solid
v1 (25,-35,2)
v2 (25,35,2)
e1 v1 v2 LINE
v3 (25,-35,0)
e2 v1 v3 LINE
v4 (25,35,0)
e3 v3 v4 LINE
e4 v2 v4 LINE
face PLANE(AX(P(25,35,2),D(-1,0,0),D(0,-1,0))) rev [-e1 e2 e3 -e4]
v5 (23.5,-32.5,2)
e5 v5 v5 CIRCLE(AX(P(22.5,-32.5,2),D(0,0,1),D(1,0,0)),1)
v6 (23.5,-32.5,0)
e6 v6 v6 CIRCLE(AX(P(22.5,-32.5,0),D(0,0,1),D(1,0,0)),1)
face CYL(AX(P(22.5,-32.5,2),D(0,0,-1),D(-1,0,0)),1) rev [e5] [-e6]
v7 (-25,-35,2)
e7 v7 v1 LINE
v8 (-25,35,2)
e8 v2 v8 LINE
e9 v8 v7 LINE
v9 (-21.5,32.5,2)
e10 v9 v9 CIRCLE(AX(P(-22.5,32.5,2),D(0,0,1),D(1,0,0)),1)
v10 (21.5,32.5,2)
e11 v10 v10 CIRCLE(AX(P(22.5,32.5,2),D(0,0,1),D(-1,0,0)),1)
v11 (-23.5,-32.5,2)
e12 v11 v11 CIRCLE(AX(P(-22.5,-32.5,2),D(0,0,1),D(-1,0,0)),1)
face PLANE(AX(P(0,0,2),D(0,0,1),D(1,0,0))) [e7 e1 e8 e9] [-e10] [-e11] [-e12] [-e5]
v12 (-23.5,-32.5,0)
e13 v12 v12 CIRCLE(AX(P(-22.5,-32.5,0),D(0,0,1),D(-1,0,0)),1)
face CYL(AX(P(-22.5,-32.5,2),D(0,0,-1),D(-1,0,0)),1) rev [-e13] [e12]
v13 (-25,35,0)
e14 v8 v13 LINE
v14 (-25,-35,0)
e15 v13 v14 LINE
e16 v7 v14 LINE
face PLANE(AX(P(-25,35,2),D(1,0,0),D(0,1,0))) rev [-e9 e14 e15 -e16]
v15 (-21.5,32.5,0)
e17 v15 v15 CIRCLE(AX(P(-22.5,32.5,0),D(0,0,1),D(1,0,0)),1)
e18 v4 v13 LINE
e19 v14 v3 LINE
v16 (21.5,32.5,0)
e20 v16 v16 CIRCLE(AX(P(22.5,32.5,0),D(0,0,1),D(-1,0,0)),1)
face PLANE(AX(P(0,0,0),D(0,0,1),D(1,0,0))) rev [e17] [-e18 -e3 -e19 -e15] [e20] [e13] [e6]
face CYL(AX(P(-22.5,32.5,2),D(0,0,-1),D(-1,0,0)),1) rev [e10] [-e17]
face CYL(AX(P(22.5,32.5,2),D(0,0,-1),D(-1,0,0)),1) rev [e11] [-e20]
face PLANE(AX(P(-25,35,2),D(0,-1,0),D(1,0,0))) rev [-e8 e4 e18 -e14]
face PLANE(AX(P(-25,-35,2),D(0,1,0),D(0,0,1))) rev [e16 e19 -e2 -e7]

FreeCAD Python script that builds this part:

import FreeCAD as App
import Part
import Sketcher

V = App.Vector
Q = App.Units.Quantity

doc = App.newDocument("Part")
body = doc.addObject("PartDesign::Body", "Body")

sketch1 = body.newObject("Sketcher::SketchObject", "Sketch")
sketch1.AttachmentSupport = (doc.getObject("XY_Plane"), [""])
sketch1.MapMode = "FlatFace"
sketch1.addGeometry([
    Part.LineSegment(V(-25, 35, 0), V(-25, -35, 0)),
    Part.LineSegment(V(-25, -35, 0), V(25, -35, 0)),
    Part.LineSegment(V(25, -35, 0), V(25, 35, 0)),
    Part.LineSegment(V(25, 35, 0), V(-25, 35, 0)),
    Part.Circle(V(-22.5, -32.5, 0), V(0, 0, 1), 1),
    Part.Circle(V(22.5, -32.5, 0), V(0, 0, 1), 1),
    Part.Circle(V(-22.5, 32.5, 0), V(0, 0, 1), 1),
    Part.Circle(V(22.5, 32.5, 0), V(0, 0, 1), 1),
], False)
sketch1.addConstraint([
    Sketcher.Constraint("Coincident", 0, 2, 1, 1),
    Sketcher.Constraint("Coincident", 1, 2, 2, 1),
    Sketcher.Constraint("Coincident", 2, 2, 3, 1),
    Sketcher.Constraint("Coincident", 3, 2, 0, 1),
    Sketcher.Constraint("Vertical", 0),
    Sketcher.Constraint("Horizontal", 1),
    Sketcher.Constraint("Vertical", 2),
    Sketcher.Constraint("Horizontal", 3),
    Sketcher.Constraint("Equal", 4, 5),
    Sketcher.Constraint("Equal", 5, 6),
    Sketcher.Constraint("Equal", 6, 7),
    Sketcher.Constraint("Symmetric", 5, 3, 6, 3, -1, 1),
    Sketcher.Constraint("Symmetric", 4, 3, 7, 3, -1, 1),
    Sketcher.Constraint("Symmetric", 0, 2, 2, 2, -1, 1),
    Sketcher.Constraint("Symmetric", 4, 3, 5, 3, -2),
    Sketcher.Constraint("Diameter", 4, Q("2 mm")),
    Sketcher.Constraint("DistanceX", 1, 1, 1, 2, Q("50 mm")),
    Sketcher.Constraint("DistanceY", 0, 2, 0, 1, Q("70 mm")),
    Sketcher.Constraint("DistanceX", 4, 3, 5, 3, Q("45 mm")),
    Sketcher.Constraint("DistanceY", 4, 3, 6, 3, Q("65 mm")),
])
pad1 = body.newObject("PartDesign::Pad", "Pad")
pad1.Profile = sketch1
pad1.Length = 2

doc.recompute()
